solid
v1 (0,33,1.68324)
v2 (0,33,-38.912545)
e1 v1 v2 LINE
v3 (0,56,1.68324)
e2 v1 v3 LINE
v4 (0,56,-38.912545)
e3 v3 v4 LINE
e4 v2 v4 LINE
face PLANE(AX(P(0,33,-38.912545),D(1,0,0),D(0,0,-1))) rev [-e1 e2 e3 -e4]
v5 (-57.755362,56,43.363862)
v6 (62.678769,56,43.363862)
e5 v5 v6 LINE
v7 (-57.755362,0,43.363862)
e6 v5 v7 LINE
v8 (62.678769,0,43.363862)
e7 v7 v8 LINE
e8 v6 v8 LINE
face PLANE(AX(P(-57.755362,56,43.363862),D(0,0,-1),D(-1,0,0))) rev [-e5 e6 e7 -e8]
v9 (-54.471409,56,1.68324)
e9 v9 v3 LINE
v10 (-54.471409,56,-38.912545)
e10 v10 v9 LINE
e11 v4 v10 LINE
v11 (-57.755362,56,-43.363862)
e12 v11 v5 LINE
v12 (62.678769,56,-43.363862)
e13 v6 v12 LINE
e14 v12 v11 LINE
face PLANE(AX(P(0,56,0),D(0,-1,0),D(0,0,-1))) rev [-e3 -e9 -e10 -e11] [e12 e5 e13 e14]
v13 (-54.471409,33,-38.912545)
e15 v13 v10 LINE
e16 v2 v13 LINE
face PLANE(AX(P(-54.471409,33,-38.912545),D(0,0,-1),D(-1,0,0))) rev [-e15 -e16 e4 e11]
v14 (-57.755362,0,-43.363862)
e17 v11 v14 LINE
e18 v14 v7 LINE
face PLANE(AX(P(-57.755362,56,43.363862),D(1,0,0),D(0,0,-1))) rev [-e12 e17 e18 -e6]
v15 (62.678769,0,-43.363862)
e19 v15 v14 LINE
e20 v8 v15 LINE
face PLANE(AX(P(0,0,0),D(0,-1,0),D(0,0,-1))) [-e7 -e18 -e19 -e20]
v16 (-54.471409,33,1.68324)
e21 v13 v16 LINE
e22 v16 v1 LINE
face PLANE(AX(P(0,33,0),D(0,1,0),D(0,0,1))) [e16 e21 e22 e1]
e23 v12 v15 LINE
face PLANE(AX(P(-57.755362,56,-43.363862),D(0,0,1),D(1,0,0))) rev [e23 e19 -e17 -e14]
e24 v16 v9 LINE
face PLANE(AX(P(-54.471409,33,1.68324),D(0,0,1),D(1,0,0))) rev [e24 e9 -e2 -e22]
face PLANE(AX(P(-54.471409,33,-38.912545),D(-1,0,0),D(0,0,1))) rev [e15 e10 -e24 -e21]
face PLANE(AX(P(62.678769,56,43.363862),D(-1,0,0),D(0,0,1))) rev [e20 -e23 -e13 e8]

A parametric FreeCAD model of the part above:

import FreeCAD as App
import Part
import Sketcher

V = App.Vector


def add_polygon(sketch, points):
    """Adds a closed chain of lines whose ends are joined by coincident constraints."""
    first, n = sketch.GeometryCount, len(points)
    for a, b in zip(points, points[1:] + points[:1]):
        sketch.addGeometry(Part.LineSegment(App.Vector(*a, 0), App.Vector(*b, 0)), False)
    for i in range(n):
        sketch.addConstraint(Sketcher.Constraint("Coincident", first + i, 2, first + (i + 1) % n, 1))

doc = App.newDocument("Part")
body = doc.addObject("PartDesign::Body", "Body")

sketch1 = body.newObject("Sketcher::SketchObject", "Sketch")
sketch1.AttachmentSupport = (doc.getObject("XZ_Plane"), [""])
sketch1.MapMode = "FlatFace"
add_polygon(sketch1, [(-58, -43), (-58, 43), (63, 43), (63, -43)])
sketch1.addConstraint(Sketcher.Constraint("Vertical", 0))
sketch1.addConstraint(Sketcher.Constraint("Horizontal", 1))
sketch1.addConstraint(Sketcher.Constraint("Vertical", 2))
sketch1.addConstraint(Sketcher.Constraint("Horizontal", 3))
sketch1.addConstraint(Sketcher.Constraint("DistanceX", 1, 1, 1, 2, 120.434131))
sketch1.addConstraint(Sketcher.Constraint("DistanceY", 0, 1, 0, 2, 86.727723))
sketch1.addConstraint(Sketcher.Constraint("DistanceX", 0, 2, -1, 1, 57.755362))
sketch1.addConstraint(Sketcher.Constraint("DistanceY", -1, 1, 0, 2, 43.363862))
pad1 = body.newObject("PartDesign::Pad", "Pad")
pad1.Profile = sketch1
pad1.Length = 56
pad1.Reversed = True

sketch2 = body.newObject("Sketcher::SketchObject", "Sketch001")
sketch2.AttachmentSupport = (doc.getObject("XZ_Plane"), [""])
sketch2.MapMode = "FlatFace"
sketch2.AttachmentOffset = App.Placement(V(0, 0, -56), App.Rotation())
add_polygon(sketch2, [(-54, -39), (-54, 2), (0, 2), (0, -39)])
sketch2.addConstraint(Sketcher.Constraint("Vertical", 0))
sketch2.addConstraint(Sketcher.Constraint("Horizontal", 1))
sketch2.addConstraint(Sketcher.Constraint("Vertical", 2))
sketch2.addConstraint(Sketcher.Constraint("Horizontal", 3))
sketch2.addConstraint(Sketcher.Constraint("PointOnObject", 1, 2, -2))
sketch2.addConstraint(Sketcher.Constraint("DistanceX", 1, 1, 1, 2, 54.471409))
sketch2.addConstraint(Sketcher.Constraint("DistanceY", 0, 1, 0, 2, 40.595785))
sketch2.addConstraint(Sketcher.Constraint("DistanceY", -1, 1, 0, 2, 1.68324))
pocket1 = body.newObject("PartDesign::Pocket", "Pocket")
pocket1.Profile = sketch2
pocket1.Length = 23
pocket1.Reversed = True

doc.recompute()
